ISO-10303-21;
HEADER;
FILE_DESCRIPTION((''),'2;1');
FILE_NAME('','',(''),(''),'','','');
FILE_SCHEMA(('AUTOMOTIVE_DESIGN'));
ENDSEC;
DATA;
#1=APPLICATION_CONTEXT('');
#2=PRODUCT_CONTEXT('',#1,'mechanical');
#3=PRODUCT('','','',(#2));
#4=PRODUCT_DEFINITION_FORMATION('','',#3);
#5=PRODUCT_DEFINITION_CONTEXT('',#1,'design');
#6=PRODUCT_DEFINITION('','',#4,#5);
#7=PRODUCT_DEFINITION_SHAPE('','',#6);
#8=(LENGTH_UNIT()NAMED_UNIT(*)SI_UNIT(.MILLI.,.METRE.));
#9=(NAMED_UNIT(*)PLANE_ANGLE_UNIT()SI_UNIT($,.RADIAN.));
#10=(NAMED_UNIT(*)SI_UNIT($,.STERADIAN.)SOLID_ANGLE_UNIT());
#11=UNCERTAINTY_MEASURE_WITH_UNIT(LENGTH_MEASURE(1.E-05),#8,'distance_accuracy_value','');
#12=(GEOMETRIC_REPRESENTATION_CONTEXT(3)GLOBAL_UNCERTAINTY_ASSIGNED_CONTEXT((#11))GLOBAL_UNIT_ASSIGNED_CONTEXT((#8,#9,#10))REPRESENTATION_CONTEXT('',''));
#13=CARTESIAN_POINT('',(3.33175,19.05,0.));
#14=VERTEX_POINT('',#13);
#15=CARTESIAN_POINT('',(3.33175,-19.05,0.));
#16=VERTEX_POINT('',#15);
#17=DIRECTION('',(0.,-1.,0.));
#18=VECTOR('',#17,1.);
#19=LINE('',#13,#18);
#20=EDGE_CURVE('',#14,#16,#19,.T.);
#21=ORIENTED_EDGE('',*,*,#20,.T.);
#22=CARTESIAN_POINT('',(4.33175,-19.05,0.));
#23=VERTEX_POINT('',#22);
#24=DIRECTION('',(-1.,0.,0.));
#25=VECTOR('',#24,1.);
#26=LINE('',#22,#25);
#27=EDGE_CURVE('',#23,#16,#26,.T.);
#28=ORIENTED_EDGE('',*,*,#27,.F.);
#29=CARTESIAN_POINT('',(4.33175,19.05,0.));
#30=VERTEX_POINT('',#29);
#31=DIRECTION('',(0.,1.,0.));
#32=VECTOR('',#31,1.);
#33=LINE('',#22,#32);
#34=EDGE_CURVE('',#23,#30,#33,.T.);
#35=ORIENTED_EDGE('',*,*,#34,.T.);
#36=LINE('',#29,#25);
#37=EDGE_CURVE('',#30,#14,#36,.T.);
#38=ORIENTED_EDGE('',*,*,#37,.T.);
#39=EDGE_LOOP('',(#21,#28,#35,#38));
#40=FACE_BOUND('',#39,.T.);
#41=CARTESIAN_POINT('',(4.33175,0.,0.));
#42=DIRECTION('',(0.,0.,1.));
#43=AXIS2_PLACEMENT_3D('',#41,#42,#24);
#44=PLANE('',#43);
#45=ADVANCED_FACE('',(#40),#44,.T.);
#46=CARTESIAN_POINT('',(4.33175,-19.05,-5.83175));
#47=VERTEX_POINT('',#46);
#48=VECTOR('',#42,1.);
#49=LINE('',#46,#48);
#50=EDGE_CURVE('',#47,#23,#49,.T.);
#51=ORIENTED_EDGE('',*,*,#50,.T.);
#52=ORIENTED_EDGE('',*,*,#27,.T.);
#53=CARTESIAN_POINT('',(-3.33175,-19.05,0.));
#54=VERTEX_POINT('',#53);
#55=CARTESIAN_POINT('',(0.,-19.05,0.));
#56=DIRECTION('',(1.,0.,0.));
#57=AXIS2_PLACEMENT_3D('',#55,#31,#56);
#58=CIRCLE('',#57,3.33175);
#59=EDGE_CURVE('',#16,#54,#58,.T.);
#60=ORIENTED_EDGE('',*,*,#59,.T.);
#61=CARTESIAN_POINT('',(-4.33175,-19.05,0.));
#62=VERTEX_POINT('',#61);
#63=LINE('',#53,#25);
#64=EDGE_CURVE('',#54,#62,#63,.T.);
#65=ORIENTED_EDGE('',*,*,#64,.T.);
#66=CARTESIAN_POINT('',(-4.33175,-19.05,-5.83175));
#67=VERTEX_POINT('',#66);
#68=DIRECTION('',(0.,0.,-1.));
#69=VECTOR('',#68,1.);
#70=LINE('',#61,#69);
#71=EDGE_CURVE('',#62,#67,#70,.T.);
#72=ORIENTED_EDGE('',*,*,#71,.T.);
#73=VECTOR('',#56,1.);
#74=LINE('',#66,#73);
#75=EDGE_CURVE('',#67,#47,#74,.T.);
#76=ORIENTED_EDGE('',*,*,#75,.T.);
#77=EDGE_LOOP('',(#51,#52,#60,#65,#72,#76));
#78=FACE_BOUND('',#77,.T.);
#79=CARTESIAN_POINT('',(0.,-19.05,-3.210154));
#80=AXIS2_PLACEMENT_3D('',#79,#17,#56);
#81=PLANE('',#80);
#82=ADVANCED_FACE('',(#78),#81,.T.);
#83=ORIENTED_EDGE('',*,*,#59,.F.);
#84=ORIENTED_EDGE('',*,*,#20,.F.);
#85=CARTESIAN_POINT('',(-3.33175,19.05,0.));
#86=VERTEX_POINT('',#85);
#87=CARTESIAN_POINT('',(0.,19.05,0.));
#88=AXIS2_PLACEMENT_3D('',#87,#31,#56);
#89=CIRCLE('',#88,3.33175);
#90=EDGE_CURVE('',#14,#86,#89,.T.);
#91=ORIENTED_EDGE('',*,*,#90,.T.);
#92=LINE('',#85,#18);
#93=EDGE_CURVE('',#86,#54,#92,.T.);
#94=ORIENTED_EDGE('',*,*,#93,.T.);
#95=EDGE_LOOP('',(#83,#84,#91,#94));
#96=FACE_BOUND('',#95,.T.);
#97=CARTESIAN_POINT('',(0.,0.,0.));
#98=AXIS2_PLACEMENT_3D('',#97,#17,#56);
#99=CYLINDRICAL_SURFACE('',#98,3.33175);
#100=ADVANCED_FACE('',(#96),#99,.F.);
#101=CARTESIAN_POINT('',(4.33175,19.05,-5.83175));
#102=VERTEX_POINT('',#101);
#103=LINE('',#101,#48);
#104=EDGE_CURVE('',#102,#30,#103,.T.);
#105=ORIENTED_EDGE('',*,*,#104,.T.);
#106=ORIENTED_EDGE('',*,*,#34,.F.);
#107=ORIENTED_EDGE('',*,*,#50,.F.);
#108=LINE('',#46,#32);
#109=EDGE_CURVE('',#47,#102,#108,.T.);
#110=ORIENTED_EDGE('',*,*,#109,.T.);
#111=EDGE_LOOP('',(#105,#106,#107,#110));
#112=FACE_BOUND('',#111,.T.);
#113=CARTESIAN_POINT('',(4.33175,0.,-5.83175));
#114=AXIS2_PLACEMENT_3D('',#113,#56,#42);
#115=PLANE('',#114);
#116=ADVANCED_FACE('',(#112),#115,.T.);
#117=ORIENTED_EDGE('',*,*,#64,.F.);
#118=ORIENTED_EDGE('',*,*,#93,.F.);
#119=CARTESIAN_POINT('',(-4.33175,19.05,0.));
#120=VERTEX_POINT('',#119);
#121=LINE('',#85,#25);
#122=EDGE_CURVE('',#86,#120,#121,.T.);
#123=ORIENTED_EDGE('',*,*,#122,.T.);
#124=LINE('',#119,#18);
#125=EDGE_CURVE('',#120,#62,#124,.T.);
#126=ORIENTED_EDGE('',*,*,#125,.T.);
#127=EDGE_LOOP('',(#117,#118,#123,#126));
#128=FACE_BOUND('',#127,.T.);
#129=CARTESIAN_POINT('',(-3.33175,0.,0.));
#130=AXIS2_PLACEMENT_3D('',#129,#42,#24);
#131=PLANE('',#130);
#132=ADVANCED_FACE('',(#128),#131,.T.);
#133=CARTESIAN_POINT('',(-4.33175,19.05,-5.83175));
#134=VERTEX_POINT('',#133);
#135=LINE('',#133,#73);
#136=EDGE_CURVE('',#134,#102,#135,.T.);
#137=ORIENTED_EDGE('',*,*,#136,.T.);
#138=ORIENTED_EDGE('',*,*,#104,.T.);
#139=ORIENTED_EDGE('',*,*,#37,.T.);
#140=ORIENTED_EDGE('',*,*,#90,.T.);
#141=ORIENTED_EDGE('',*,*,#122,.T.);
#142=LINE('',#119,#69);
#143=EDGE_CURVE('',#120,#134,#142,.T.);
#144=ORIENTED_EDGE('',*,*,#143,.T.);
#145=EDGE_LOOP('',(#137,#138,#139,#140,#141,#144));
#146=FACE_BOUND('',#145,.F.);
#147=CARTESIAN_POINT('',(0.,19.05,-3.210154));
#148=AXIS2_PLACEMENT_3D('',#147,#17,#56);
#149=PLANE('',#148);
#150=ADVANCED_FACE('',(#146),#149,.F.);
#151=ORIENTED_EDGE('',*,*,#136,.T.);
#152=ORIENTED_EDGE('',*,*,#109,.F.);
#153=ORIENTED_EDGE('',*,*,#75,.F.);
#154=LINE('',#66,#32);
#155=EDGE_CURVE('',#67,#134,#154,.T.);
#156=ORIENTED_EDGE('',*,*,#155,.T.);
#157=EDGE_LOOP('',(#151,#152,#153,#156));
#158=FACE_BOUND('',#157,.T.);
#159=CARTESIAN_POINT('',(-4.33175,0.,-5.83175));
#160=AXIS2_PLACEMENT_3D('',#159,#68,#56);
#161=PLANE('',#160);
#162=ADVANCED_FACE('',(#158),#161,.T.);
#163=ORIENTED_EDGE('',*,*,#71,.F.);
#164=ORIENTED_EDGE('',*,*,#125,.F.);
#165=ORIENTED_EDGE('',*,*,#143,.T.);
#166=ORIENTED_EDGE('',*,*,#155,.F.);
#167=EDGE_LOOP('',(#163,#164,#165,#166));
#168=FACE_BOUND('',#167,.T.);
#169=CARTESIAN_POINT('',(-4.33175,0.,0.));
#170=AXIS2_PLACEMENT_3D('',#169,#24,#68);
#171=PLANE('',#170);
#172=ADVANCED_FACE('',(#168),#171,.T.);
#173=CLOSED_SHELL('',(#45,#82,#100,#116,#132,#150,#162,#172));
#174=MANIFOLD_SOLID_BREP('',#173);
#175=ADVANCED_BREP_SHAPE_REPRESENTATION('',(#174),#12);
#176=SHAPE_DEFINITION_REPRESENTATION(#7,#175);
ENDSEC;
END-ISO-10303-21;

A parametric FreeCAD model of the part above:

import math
import FreeCAD as App
import Part
import Sketcher

V = App.Vector
Q = App.Units.Quantity

doc = App.newDocument("Part")
body = doc.addObject("PartDesign::Body", "Body")

sketch1 = doc.addObject("Sketcher::SketchObject", "Sketch")
body.addObject(sketch1)
sketch1.AttachmentSupport = (doc.XZ_Plane, [""])
sketch1.MapMode = "FlatFace"
sketch1.addGeometry([
    Part.LineSegment(V(4.3, 0, 0), V(3.3, 0, 0)),
    Part.ArcOfCircle(Part.Circle(V(0, 0, 0), V(0, 0, 1), 3.3), math.radians(180), math.radians(360)),
    Part.LineSegment(V(-3.3, 0, 0), V(-4.3, 0, 0)),
    Part.LineSegment(V(-4.3, 0, 0), V(-4.3, -5.8, 0)),
    Part.LineSegment(V(-4.3, -5.8, 0), V(4.3, -5.8, 0)),
    Part.LineSegment(V(4.3, -5.8, 0), V(4.3, 0, 0)),
], False)
sketch1.addConstraint([
    Sketcher.Constraint("Coincident", 0, 2, 1, 2),
    Sketcher.Constraint("Coincident", 1, 1, 2, 1),
    Sketcher.Constraint("Coincident", 2, 2, 3, 1),
    Sketcher.Constraint("Coincident", 3, 2, 4, 1),
    Sketcher.Constraint("Coincident", 4, 2, 5, 1),
    Sketcher.Constraint("Coincident", 5, 2, 0, 1),
    Sketcher.Constraint("Horizontal", 0),
    Sketcher.Constraint("Horizontal", 2),
    Sketcher.Constraint("Vertical", 3),
    Sketcher.Constraint("Horizontal", 4),
    Sketcher.Constraint("Vertical", 5),
    Sketcher.Constraint("Coincident", 1, 3, -1, 1),
    Sketcher.Constraint("Symmetric", 2, 2, 5, 2, -1, 1),
    Sketcher.Constraint("PointOnObject", 0, 2, -1),
    Sketcher.Constraint("DistanceX", 0, 2, 0, 1, Q("1 mm")),
    Sketcher.Constraint("Radius", 1, Q("3.33175 mm")),
    Sketcher.Constraint("DistanceY", 3, 2, 3, 1, Q("5.83175 mm")),
])
pad1 = doc.addObject("PartDesign::Pad", "Pad")
body.addObject(pad1)
pad1.Profile = sketch1
pad1.Length = 38.1
pad1.Midplane = True

doc.recompute()
